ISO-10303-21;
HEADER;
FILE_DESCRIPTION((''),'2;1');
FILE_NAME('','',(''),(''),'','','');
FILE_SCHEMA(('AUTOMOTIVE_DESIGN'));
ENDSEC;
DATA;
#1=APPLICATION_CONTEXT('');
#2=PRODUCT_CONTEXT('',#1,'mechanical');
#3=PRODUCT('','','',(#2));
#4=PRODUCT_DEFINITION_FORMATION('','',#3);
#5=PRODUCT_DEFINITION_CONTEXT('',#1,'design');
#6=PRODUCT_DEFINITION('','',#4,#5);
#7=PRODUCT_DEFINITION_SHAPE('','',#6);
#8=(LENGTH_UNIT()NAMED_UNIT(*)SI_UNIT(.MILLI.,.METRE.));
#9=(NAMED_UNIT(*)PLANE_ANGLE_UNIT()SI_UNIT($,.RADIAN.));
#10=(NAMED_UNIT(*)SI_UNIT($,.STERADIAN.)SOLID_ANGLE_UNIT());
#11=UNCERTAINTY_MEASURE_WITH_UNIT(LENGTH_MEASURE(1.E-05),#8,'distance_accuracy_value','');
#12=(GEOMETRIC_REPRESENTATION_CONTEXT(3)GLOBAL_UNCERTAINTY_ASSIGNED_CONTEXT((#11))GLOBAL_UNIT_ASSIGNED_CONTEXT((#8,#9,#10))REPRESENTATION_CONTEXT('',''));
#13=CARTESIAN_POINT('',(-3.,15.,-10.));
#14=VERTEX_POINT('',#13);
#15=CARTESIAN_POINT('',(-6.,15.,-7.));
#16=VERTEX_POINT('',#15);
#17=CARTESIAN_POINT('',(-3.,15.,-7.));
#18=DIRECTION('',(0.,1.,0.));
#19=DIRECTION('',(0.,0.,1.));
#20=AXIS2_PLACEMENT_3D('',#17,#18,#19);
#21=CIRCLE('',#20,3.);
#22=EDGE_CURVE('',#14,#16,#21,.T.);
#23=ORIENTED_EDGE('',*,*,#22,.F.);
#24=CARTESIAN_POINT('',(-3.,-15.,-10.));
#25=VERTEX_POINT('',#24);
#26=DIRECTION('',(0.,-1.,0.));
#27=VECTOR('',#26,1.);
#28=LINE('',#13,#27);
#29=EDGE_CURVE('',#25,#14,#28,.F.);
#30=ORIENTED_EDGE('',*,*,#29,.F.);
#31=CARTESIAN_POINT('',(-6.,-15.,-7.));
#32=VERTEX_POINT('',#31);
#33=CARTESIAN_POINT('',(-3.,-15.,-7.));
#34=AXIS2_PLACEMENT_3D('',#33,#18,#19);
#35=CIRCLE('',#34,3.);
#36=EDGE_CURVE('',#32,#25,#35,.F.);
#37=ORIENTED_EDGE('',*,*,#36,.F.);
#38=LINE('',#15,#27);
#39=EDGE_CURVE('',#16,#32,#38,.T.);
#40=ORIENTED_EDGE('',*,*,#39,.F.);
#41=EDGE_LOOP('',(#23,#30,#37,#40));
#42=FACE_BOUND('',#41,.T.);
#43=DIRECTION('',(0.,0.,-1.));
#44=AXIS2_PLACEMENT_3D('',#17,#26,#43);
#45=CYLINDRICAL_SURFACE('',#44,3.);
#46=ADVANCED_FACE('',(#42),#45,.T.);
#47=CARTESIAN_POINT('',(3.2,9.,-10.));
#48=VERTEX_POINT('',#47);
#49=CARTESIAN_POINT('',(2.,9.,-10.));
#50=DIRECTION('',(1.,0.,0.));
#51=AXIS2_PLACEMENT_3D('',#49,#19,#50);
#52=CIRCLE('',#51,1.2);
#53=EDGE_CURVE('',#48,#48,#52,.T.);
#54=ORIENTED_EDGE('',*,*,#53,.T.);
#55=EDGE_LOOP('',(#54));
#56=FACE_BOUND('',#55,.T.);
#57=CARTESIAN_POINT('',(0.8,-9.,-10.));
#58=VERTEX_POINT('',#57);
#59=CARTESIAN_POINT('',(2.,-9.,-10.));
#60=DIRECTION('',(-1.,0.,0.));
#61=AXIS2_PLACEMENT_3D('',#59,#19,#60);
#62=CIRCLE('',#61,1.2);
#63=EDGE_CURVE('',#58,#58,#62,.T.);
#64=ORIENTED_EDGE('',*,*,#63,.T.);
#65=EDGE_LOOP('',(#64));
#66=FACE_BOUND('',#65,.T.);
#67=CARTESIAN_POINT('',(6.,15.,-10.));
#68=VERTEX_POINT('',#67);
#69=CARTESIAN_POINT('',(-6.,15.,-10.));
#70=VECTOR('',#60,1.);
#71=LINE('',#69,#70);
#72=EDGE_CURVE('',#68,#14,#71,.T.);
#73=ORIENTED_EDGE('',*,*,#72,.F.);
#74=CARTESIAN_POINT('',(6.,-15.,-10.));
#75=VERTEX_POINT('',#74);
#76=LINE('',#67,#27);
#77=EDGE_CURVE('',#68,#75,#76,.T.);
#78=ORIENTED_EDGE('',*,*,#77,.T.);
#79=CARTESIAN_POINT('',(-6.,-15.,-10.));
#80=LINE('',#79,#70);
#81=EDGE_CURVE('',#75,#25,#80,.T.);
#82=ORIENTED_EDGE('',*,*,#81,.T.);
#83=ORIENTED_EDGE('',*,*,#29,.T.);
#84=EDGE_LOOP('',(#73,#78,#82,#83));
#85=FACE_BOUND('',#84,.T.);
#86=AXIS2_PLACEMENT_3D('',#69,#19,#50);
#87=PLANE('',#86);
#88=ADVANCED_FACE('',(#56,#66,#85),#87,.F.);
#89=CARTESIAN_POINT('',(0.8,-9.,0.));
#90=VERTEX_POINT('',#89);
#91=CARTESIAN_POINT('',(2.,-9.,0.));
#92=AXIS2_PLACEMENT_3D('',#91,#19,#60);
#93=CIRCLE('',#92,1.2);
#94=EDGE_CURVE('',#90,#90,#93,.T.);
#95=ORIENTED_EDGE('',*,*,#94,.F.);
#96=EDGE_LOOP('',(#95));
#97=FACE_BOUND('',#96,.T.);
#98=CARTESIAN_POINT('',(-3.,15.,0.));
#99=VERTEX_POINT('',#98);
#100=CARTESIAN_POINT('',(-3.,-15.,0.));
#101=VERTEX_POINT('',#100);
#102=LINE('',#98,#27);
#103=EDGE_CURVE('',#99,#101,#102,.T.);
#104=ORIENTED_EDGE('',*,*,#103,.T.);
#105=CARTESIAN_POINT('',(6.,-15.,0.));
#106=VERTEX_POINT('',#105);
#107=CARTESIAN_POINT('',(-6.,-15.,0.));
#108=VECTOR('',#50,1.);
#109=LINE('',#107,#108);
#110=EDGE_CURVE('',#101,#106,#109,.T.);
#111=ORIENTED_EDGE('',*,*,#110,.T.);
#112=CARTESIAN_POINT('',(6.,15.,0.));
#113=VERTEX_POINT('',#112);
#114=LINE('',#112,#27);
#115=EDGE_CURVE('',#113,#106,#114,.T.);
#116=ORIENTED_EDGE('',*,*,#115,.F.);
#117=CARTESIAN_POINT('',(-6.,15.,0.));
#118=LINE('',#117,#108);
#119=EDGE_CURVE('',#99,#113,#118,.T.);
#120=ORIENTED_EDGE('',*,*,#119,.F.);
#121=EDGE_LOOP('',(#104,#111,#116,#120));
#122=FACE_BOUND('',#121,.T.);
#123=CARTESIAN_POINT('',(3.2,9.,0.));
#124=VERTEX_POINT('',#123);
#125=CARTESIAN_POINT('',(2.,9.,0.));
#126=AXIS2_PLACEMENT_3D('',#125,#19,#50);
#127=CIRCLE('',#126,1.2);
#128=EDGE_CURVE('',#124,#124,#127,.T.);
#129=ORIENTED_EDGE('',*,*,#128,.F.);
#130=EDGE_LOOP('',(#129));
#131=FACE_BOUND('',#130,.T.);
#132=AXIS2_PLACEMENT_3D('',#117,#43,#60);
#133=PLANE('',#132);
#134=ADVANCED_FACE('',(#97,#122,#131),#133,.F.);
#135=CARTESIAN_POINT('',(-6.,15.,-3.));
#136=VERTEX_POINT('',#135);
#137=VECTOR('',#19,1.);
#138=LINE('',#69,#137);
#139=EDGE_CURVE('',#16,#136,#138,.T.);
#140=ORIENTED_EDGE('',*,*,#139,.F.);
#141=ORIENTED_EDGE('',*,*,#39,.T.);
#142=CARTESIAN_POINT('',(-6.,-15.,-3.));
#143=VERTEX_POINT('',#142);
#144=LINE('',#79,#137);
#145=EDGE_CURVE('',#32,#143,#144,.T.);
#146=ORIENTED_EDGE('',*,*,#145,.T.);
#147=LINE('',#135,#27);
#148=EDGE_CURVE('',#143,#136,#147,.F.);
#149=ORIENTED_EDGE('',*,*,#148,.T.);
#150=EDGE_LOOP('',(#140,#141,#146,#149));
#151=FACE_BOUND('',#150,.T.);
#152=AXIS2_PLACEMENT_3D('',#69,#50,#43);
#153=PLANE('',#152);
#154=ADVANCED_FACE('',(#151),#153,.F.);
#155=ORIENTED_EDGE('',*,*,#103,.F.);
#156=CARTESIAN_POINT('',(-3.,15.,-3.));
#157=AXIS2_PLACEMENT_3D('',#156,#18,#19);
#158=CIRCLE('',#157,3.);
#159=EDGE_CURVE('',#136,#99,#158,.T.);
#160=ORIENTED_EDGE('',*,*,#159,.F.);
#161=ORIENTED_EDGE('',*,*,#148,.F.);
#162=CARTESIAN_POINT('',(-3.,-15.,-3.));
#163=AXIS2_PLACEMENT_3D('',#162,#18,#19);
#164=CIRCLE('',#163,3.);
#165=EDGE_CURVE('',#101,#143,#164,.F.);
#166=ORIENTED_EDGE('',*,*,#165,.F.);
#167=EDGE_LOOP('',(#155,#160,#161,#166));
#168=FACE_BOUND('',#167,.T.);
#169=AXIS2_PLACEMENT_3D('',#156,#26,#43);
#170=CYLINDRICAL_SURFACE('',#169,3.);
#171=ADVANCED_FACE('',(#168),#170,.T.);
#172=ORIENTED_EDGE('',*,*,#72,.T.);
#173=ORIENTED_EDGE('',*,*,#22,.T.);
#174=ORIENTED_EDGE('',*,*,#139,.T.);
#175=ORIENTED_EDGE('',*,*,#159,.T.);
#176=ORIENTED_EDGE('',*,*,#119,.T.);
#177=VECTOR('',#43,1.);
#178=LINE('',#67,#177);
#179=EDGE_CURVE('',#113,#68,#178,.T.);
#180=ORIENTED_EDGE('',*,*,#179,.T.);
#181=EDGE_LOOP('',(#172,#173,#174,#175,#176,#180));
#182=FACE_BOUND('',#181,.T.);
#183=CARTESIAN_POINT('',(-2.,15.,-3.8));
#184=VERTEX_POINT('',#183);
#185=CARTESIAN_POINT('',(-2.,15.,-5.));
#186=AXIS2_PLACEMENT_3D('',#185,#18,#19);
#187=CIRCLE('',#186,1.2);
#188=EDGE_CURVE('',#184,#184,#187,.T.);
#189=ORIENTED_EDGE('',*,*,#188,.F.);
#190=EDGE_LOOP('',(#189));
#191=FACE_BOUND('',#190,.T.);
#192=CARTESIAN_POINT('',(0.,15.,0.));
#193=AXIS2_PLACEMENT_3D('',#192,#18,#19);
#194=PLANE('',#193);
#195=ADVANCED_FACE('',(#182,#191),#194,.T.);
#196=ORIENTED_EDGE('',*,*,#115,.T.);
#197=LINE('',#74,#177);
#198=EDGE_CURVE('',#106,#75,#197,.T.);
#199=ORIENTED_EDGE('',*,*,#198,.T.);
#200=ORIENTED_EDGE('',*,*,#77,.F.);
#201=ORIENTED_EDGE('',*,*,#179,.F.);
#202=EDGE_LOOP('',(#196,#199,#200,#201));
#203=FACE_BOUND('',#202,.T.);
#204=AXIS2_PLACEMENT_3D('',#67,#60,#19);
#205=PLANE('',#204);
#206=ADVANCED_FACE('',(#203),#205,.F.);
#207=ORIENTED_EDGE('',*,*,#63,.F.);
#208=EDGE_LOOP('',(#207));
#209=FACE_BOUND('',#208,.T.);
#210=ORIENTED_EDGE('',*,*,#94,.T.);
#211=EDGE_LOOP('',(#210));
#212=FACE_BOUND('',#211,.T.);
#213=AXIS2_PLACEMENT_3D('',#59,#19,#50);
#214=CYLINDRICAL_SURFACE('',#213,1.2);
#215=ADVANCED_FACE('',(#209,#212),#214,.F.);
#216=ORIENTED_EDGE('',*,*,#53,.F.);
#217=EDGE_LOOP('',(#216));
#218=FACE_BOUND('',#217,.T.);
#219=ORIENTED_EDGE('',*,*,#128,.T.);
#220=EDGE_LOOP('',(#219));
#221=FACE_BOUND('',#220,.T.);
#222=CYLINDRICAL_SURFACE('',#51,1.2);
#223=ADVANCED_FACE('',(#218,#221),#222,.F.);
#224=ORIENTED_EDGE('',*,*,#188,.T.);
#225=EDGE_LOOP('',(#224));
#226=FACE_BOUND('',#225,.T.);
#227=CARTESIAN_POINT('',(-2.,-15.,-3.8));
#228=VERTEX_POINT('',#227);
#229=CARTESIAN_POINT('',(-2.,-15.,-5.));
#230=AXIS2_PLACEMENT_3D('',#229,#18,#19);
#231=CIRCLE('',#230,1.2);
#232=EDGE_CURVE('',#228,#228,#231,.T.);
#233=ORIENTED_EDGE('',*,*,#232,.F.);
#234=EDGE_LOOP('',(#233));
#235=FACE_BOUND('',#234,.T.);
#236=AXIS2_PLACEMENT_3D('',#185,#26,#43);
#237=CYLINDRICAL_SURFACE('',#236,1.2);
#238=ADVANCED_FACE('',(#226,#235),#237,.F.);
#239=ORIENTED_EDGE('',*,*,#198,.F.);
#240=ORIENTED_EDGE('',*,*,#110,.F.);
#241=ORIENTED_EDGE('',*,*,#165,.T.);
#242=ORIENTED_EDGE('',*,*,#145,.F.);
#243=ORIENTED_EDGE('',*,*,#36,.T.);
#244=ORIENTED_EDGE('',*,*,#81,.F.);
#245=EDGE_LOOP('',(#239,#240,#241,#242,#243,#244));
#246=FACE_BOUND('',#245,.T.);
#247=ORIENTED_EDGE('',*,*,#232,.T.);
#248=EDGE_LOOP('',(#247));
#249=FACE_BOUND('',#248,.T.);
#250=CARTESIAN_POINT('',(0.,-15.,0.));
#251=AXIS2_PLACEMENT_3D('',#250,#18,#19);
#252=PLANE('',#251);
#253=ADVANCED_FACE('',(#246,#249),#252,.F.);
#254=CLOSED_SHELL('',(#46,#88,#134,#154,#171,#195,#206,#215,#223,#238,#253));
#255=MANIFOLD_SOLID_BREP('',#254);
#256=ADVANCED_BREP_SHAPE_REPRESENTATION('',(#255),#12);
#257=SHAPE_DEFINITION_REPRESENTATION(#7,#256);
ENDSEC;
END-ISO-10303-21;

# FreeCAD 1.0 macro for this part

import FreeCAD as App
import Part
import Sketcher
from FreeCAD import Vector
Q = App.Units.Quantity


def edges_at(feature, points):
    """Names of the edges that pass closest to the given points."""
    edges = feature.Shape.Edges
    near = lambda p: min(range(len(edges)), key=lambda i: edges[i].distToShape(Part.Vertex(*p))[0])
    return sorted({f"Edge{near(p) + 1}" for p in points})

doc = App.newDocument("Part")
params = doc.addObject("Spreadsheet::Sheet", "Params")
for row, (alias, value) in enumerate([
    ("sketch1_diameter", "2.4 mm"),
    ("sketch1_width", "12 mm"),
    ("sketch1_height", "10 mm"),
    ("pad1_length", "30 mm"),
    ("sketch2_diameter", "2.4 mm"),
    ("fillet_radius", "3 mm"),
], start=1):
    params.set(f"A{row}", alias)
    params.set(f"B{row}", "=" + value)
    params.setAlias(f"B{row}", alias)

body = doc.addObject("PartDesign::Body", "Body")

# Sketch on XZ plane
sketch1 = body.newObject("Sketcher::SketchObject", "Sketch")
sketch1.AttachmentSupport = (doc.getObject("XZ_Plane"), [""])
sketch1.MapMode = "FlatFace"
sketch1.addGeometry([
    Part.LineSegment(Vector(-6, -10, 0), Vector(-6, 0, 0)),  # 0
    Part.LineSegment(Vector(-6, 0, 0), Vector(6, 0, 0)),  # 1
    Part.LineSegment(Vector(6, 0, 0), Vector(6, -10, 0)),  # 2
    Part.LineSegment(Vector(6, -10, 0), Vector(-6, -10, 0)),  # 3
    Part.Circle(Vector(-2, -5, 0), Vector(0, 0, 1), 1.2),  # 4
], False)
sketch1.addConstraint([
    Sketcher.Constraint("Coincident", 0, 2, 1, 1),
    Sketcher.Constraint("Coincident", 1, 2, 2, 1),
    Sketcher.Constraint("Coincident", 2, 2, 3, 1),
    Sketcher.Constraint("Coincident", 3, 2, 0, 1),
    Sketcher.Constraint("Vertical", 0),
    Sketcher.Constraint("Horizontal", 1),
    Sketcher.Constraint("Vertical", 2),
    Sketcher.Constraint("Horizontal", 3),
    Sketcher.Constraint("Symmetric", 0, 2, 1, 2, -1, 1),
    Sketcher.Constraint("Diameter", 4, Q("2.4 mm")),
    Sketcher.Constraint("DistanceX", 1, 1, 1, 2, Q("12 mm")),
    Sketcher.Constraint("DistanceY", 0, 1, 0, 2, Q("10 mm")),
    Sketcher.Constraint("DistanceX", 4, 3, -1, 1, Q("2 mm")),
    Sketcher.Constraint("DistanceY", 4, 3, -1, 1, Q("5 mm")),
])
sketch1.setExpression("Constraints[9]", "Params.sketch1_diameter")
sketch1.setExpression("Constraints[10]", "Params.sketch1_width")
sketch1.setExpression("Constraints[11]", "Params.sketch1_height")
pad1 = body.newObject("PartDesign::Pad", "Pad")
pad1.Profile = sketch1
pad1.setExpression("Length", "Params.pad1_length")
pad1.Midplane = True

# Sketch on XY plane
sketch2 = body.newObject("Sketcher::SketchObject", "Sketch001")
sketch2.AttachmentSupport = (doc.getObject("XY_Plane"), [""])
sketch2.MapMode = "FlatFace"
sketch2.addGeometry([
    Part.Circle(Vector(2, 9, 0), Vector(0, 0, 1), 1.2),
    Part.Circle(Vector(2, -9, 0), Vector(0, 0, 1), 1.2),
], False)
sketch2.addConstraint([
    Sketcher.Constraint("Equal", 0, 1),
    Sketcher.Constraint("Symmetric", 0, 3, 1, 3, -1),
    Sketcher.Constraint("Diameter", 0, Q("2.4 mm")),
    Sketcher.Constraint("DistanceX", -1, 1, 0, 3, Q("2 mm")),
    Sketcher.Constraint("DistanceY", -1, 1, 0, 3, Q("9 mm")),
])
sketch2.setExpression("Constraints[2]", "Params.sketch2_diameter")
pocket1 = body.newObject("PartDesign::Pocket", "Pocket")
pocket1.Profile = sketch2
pocket1.Type = "ThroughAll"
doc.recompute()

fillet = body.newObject("PartDesign::Fillet", "Fillet")
fillet.Base = (pocket1, edges_at(pocket1, [(-6, 0, -10), (-6, 0, 0)]))
fillet.setExpression("Radius", "Params.fillet_radius")

doc.recompute()
